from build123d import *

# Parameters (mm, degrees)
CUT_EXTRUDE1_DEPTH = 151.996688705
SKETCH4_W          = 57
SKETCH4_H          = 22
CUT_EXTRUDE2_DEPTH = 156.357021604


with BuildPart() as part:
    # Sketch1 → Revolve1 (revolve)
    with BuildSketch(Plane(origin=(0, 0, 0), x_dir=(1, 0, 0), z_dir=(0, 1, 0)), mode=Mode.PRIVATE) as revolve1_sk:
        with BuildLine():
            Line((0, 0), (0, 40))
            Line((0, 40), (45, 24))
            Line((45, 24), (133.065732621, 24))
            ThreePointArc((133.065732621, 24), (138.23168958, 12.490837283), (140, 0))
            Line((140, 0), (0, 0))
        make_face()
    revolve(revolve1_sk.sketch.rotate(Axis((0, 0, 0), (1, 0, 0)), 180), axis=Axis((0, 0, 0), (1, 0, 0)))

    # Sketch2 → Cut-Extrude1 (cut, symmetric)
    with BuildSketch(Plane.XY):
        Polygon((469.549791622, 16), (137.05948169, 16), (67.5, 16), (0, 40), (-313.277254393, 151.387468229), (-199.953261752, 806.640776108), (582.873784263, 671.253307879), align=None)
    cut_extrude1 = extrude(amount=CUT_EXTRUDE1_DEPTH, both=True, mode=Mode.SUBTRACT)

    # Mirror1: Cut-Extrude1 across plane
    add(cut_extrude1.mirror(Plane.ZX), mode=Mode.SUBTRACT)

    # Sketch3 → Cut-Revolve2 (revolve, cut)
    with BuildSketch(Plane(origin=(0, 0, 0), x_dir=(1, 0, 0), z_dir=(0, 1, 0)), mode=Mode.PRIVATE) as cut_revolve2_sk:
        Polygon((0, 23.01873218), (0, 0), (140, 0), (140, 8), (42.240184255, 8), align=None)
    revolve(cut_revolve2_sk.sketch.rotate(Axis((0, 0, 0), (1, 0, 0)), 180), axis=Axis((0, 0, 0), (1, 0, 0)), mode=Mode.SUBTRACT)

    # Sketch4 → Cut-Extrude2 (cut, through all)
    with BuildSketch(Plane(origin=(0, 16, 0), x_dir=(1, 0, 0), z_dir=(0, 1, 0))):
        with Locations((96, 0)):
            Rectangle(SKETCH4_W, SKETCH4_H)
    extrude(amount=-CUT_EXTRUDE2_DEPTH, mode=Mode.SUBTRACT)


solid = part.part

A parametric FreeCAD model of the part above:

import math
import FreeCAD as App
import Part
import Sketcher
from FreeCAD import Vector

doc = App.newDocument("Part")
body = doc.addObject("PartDesign::Body", "Body")

# Sketch on XZ plane
sketch1 = body.newObject("Sketcher::SketchObject", "Sketch")
sketch1.AttachmentSupport = (doc.getObject("XZ_Plane"), [""])
sketch1.MapMode = "FlatFace"
sketch1.addGeometry([
    Part.LineSegment(Vector(0, -40, 0), Vector(0, 0, 0)),  # 0
    Part.LineSegment(Vector(0, 0, 0), Vector(140, 0, 0)),  # 1
    Part.ArcOfCircle(Part.Circle(Vector(95, 0, 0), Vector(0, 0, 1), 45), math.radians(-32), math.radians(0)),  # 2
    Part.LineSegment(Vector(133, -24, 0), Vector(45, -24, 0)),  # 3
    Part.LineSegment(Vector(45, -24, 0), Vector(0, -40, 0)),  # 4
], False)
sketch1.addConstraint([
    Sketcher.Constraint("Coincident", 0, 2, 1, 1),
    Sketcher.Constraint("Coincident", 1, 2, 2, 2),
    Sketcher.Constraint("Coincident", 2, 1, 3, 1),
    Sketcher.Constraint("Coincident", 3, 2, 4, 1),
    Sketcher.Constraint("Coincident", 4, 2, 0, 1),
    Sketcher.Constraint("Vertical", 0),
    Sketcher.Constraint("Horizontal", 1),
    Sketcher.Constraint("Horizontal", 3),
    Sketcher.Constraint("Coincident", 0, 2, -1, 1),
    Sketcher.Constraint("PointOnObject", 2, 3, -1),
    Sketcher.Constraint("Radius", 2, 45.0),
    Sketcher.Constraint("DistanceX", 1, 1, 1, 2, 140.0),
    Sketcher.Constraint("DistanceY", 0, 1, 0, 2, 40.0),
    Sketcher.Constraint("DistanceY", 2, 1, -1, 1, 24.0),
    Sketcher.Constraint("DistanceX", -1, 1, 3, 2, 45.0),
])
revolution = body.newObject("PartDesign::Revolution", "Revolution")
revolution.Profile = sketch1
revolution.ReferenceAxis = (sketch1, ["H_Axis"])
revolution.Angle = 360

# Sketch on XY plane
sketch2 = body.newObject("Sketcher::SketchObject", "Sketch001")
sketch2.AttachmentSupport = (doc.getObject("XY_Plane"), [""])
sketch2.MapMode = "FlatFace"
sketch2.addGeometry([
    Part.LineSegment(Vector(68, 16, 0), Vector(470, 16, 0)),  # 0
    Part.LineSegment(Vector(470, 16, 0), Vector(583, 671, 0)),  # 1
    Part.LineSegment(Vector(583, 671, 0), Vector(-200, 807, 0)),  # 2
    Part.LineSegment(Vector(-200, 807, 0), Vector(-313, 151, 0)),  # 3
    Part.LineSegment(Vector(-313, 151, 0), Vector(0, 40, 0)),  # 4
    Part.LineSegment(Vector(0, 40, 0), Vector(68, 16, 0)),  # 5
], False)
sketch2.addConstraint([
    Sketcher.Constraint("Coincident", 0, 2, 1, 1),
    Sketcher.Constraint("Coincident", 1, 2, 2, 1),
    Sketcher.Constraint("Coincident", 2, 2, 3, 1),
    Sketcher.Constraint("Coincident", 3, 2, 4, 1),
    Sketcher.Constraint("Coincident", 4, 2, 5, 1),
    Sketcher.Constraint("Coincident", 5, 2, 0, 1),
    Sketcher.Constraint("Horizontal", 0),
    Sketcher.Constraint("PointOnObject", 4, 2, -2),
    Sketcher.Constraint("Perpendicular", 1, 2),
    Sketcher.Constraint("Perpendicular", 2, 3),
    Sketcher.Constraint("Parallel", 4, 5),
    Sketcher.Constraint("Equal", 1, 3),
    Sketcher.Constraint("DistanceY", -1, 1, 0, 2, 16.0),
    Sketcher.Constraint("DistanceY", -1, 1, 4, 2, 40.0),
    Sketcher.Constraint("DistanceX", -1, 1, 5, 2, 67.5),
    Sketcher.Constraint("DistanceX", 0, 1, 0, 2, 402.049792),
    Sketcher.Constraint("Distance", 1, 664.98062),
    Sketcher.Constraint("Distance", 4, 332.49031),
])
pocket1 = body.newObject("PartDesign::Pocket", "Pocket")
pocket1.Profile = sketch2
pocket1.Length = 303.993377
pocket1.Midplane = True
doc.recompute()

mirrored = body.newObject("PartDesign::Mirrored", "Mirrored")
mirrored.Originals = [pocket1]
mirrored.MirrorPlane = (doc.getObject("XZ_Plane"), [""])
body.Tip = mirrored

# Sketch on XZ plane
sketch3 = body.newObject("Sketcher::SketchObject", "Sketch002")
sketch3.AttachmentSupport = (doc.getObject("XZ_Plane"), [""])
sketch3.MapMode = "FlatFace"
sketch3.addGeometry([
    Part.LineSegment(Vector(0, -23, 0), Vector(0, 0, 0)),  # 0
    Part.LineSegment(Vector(0, 0, 0), Vector(140, 0, 0)),  # 1
    Part.LineSegment(Vector(140, 0, 0), Vector(140, -8, 0)),  # 2
    Part.LineSegment(Vector(140, -8, 0), Vector(42, -8, 0)),  # 3
    Part.LineSegment(Vector(42, -8, 0), Vector(0, -23, 0)),  # 4
], False)
sketch3.addConstraint([
    Sketcher.Constraint("Coincident", 0, 2, 1, 1),
    Sketcher.Constraint("Coincident", 1, 2, 2, 1),
    Sketcher.Constraint("Coincident", 2, 2, 3, 1),
    Sketcher.Constraint("Coincident", 3, 2, 4, 1),
    Sketcher.Constraint("Coincident", 4, 2, 0, 1),
    Sketcher.Constraint("Vertical", 0),
    Sketcher.Constraint("Horizontal", 1),
    Sketcher.Constraint("Vertical", 2),
    Sketcher.Constraint("Horizontal", 3),
    Sketcher.Constraint("Coincident", 0, 2, -1, 1),
    Sketcher.Constraint("DistanceX", 1, 1, 1, 2, 140.0),
    Sketcher.Constraint("DistanceY", 2, 2, 2, 1, 8.0),
    Sketcher.Constraint("DistanceX", 3, 2, 3, 1, 97.759816),
    Sketcher.Constraint("DistanceY", 0, 1, 0, 2, 23.018732),
])
groove = body.newObject("PartDesign::Groove", "Groove")
groove.Profile = sketch3
groove.ReferenceAxis = (sketch3, ["H_Axis"])
groove.Angle = 360

# Sketch on XZ plane
sketch4 = body.newObject("Sketcher::SketchObject", "Sketch003")
sketch4.AttachmentSupport = (doc.getObject("XZ_Plane"), [""])
sketch4.MapMode = "FlatFace"
sketch4.AttachmentOffset = App.Placement(Vector(0, 0, -16), App.Rotation())
sketch4.addGeometry([
    Part.LineSegment(Vector(68, -11, 0), Vector(68, 11, 0)),
    Part.LineSegment(Vector(68, 11, 0), Vector(124, 11, 0)),
    Part.LineSegment(Vector(124, 11, 0), Vector(124, -11, 0)),
    Part.LineSegment(Vector(124, -11, 0), Vector(68, -11, 0)),
], False)
sketch4.addConstraint([
    Sketcher.Constraint("Coincident", 0, 2, 1, 1),
    Sketcher.Constraint("Coincident", 1, 2, 2, 1),
    Sketcher.Constraint("Coincident", 2, 2, 3, 1),
    Sketcher.Constraint("Coincident", 3, 2, 0, 1),
    Sketcher.Constraint("Vertical", 0),
    Sketcher.Constraint("Horizontal", 1),
    Sketcher.Constraint("Vertical", 2),
    Sketcher.Constraint("Horizontal", 3),
    Sketcher.Constraint("DistanceX", 1, 1, 1, 2, 57.0),
    Sketcher.Constraint("DistanceY", 0, 1, 0, 2, 22.0),
    Sketcher.Constraint("DistanceY", -1, 1, 0, 2, 11.0),
    Sketcher.Constraint("DistanceX", -1, 1, 0, 2, 67.5),
])
pocket2 = body.newObject("PartDesign::Pocket", "Pocket001")
pocket2.Profile = sketch4
pocket2.Type = "ThroughAll"
pocket2.Reversed = True

doc.recompute()
